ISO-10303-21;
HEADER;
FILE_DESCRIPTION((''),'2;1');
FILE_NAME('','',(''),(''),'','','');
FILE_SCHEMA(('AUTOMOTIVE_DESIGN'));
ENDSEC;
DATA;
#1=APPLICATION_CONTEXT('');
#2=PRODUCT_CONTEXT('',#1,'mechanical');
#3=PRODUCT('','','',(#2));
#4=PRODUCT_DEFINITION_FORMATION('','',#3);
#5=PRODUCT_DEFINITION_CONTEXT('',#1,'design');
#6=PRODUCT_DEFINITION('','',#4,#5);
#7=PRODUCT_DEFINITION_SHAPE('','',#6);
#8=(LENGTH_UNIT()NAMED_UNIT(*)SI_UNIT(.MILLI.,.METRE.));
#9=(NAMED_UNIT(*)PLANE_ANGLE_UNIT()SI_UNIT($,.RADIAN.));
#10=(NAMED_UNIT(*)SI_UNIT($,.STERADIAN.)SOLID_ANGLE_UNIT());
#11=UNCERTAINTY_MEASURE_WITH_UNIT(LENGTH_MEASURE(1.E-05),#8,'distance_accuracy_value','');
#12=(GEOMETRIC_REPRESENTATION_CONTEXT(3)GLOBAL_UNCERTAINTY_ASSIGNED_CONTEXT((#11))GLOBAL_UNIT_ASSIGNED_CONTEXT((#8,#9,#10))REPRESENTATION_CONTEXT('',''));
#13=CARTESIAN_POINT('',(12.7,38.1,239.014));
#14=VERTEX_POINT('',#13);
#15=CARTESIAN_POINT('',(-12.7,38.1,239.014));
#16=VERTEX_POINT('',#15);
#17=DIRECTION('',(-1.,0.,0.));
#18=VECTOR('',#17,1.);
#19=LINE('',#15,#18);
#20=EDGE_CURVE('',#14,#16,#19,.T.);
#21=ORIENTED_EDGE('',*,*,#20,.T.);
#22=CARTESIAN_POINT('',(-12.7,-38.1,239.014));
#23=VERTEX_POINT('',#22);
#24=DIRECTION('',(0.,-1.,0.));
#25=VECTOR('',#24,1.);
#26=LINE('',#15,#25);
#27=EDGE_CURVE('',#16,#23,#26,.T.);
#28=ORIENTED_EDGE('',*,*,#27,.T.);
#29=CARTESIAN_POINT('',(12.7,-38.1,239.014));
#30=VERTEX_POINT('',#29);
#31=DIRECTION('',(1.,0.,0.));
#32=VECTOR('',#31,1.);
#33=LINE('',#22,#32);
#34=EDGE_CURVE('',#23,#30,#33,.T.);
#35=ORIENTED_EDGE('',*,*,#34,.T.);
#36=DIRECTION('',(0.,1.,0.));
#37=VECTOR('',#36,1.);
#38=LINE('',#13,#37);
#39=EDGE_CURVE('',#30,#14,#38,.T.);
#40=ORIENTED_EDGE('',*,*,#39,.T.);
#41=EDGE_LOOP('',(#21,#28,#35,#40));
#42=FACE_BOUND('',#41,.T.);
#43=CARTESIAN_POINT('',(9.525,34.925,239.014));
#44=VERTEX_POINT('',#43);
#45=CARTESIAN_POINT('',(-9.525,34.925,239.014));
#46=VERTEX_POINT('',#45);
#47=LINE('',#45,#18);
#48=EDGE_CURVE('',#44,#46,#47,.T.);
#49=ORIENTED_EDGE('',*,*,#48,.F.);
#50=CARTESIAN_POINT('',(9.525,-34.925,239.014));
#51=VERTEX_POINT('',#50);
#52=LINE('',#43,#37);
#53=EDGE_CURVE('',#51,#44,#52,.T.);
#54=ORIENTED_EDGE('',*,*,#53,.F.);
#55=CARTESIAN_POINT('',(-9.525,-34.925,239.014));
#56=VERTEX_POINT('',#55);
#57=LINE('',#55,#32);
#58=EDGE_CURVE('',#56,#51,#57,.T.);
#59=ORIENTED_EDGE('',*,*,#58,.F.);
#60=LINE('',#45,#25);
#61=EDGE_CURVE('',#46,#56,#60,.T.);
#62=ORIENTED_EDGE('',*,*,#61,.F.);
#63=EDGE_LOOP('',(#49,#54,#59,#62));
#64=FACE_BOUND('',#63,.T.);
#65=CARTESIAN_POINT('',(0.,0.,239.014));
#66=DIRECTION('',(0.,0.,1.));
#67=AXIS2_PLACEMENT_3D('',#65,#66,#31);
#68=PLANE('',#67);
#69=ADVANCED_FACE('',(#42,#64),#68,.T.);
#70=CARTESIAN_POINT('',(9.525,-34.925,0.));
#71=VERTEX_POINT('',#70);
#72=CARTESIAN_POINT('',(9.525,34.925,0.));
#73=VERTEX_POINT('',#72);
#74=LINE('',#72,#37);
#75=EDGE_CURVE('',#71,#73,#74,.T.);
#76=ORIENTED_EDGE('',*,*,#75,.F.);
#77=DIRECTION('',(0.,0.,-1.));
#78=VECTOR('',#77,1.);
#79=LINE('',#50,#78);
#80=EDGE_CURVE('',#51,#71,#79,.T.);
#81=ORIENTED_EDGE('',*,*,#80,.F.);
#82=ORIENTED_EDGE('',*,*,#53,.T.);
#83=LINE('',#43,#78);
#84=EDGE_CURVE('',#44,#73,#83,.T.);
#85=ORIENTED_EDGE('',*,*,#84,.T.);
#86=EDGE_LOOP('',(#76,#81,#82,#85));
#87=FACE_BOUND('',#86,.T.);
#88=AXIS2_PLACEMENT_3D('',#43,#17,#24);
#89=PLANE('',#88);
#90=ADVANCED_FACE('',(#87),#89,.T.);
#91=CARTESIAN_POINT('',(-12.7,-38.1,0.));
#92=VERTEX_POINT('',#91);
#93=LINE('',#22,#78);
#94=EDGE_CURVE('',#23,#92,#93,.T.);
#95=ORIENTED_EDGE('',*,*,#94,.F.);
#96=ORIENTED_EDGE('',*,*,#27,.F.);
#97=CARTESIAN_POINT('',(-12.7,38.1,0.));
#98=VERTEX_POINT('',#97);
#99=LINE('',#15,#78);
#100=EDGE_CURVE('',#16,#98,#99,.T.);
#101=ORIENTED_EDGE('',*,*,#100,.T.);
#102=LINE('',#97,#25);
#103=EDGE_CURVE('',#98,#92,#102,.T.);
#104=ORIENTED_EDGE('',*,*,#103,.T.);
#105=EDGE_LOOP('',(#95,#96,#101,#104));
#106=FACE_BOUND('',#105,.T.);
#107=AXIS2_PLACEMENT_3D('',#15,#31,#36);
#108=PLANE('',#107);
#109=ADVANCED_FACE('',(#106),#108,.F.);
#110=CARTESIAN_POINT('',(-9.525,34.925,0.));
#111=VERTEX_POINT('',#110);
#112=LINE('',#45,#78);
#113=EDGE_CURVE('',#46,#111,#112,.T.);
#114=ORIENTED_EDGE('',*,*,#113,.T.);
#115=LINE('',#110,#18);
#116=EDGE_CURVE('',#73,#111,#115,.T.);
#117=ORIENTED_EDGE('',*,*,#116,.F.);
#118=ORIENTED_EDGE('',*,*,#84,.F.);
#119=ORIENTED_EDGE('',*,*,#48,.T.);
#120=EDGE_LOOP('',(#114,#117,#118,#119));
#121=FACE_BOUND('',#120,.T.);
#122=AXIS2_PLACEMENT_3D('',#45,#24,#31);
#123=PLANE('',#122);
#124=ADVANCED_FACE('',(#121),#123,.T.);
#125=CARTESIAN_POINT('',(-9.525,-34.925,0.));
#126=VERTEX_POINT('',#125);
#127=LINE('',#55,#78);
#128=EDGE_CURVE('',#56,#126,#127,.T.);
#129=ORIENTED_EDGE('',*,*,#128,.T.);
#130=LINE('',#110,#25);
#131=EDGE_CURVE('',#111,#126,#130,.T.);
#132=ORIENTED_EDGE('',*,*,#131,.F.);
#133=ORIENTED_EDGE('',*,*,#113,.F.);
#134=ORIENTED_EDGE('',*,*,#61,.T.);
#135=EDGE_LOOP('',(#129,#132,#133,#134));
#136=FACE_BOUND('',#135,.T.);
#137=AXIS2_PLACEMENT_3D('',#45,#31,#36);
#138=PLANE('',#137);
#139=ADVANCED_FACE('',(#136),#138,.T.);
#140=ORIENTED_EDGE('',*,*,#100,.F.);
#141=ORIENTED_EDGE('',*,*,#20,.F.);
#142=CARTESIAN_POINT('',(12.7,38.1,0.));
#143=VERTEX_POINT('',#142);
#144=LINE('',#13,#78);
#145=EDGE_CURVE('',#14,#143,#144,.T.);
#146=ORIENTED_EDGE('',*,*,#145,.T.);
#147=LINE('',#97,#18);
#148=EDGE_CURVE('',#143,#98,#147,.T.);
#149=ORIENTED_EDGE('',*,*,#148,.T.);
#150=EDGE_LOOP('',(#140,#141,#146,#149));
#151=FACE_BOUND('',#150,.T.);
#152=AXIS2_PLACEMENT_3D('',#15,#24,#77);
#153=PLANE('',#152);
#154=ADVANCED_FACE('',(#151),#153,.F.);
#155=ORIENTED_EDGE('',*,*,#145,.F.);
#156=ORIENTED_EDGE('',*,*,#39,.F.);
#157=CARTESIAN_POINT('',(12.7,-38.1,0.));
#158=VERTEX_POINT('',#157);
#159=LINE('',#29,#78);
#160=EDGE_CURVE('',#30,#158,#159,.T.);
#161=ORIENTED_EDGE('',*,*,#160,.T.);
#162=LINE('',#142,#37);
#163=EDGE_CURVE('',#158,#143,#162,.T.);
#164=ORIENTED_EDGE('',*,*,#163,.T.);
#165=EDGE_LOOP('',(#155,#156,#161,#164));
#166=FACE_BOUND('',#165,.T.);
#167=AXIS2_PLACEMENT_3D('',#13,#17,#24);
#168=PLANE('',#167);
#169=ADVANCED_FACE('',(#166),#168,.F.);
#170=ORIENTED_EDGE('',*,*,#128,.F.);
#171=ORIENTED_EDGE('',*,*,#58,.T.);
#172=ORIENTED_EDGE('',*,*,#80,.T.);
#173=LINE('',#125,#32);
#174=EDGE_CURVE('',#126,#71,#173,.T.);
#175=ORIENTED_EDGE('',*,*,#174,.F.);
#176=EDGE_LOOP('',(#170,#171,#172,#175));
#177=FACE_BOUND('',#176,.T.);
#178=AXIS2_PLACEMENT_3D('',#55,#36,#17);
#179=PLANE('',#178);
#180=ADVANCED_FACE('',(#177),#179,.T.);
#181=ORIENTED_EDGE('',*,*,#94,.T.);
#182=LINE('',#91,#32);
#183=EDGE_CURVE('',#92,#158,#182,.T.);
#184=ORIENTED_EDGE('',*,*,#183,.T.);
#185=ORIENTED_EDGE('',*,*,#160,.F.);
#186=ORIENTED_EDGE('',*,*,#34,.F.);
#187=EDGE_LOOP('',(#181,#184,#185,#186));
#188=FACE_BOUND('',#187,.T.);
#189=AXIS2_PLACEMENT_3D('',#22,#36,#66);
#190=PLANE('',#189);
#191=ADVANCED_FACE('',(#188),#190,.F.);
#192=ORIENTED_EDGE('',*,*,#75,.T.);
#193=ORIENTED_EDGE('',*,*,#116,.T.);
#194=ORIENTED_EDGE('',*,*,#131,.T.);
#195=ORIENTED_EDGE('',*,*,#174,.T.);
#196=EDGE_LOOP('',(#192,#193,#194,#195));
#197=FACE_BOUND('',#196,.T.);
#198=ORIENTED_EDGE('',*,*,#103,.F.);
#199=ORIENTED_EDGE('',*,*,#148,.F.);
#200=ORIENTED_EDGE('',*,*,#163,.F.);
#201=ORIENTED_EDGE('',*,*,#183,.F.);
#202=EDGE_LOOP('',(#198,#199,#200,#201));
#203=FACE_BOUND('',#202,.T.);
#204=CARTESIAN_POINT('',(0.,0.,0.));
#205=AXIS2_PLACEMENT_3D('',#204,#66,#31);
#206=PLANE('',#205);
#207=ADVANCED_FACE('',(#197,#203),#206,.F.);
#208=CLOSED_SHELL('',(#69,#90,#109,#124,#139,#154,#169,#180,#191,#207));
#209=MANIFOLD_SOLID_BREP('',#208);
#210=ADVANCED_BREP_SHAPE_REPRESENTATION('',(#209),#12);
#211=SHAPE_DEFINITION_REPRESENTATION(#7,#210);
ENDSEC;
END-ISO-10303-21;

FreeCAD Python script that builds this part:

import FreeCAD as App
import Part
import Sketcher
from FreeCAD import Vector
Q = App.Units.Quantity


def add_polygon(sketch, points):
    """Adds a closed chain of lines whose ends are joined by coincident constraints."""
    first, n = sketch.GeometryCount, len(points)
    for a, b in zip(points, points[1:] + points[:1]):
        sketch.addGeometry(Part.LineSegment(App.Vector(*a, 0), App.Vector(*b, 0)), False)
    for i in range(n):
        sketch.addConstraint(Sketcher.Constraint("Coincident", first + i, 2, first + (i + 1) % n, 1))

doc = App.newDocument("Part")
body = doc.addObject("PartDesign::Body", "Body")

# Sketch on XY plane
sketch1 = body.newObject("Sketcher::SketchObject", "Sketch")
sketch1.AttachmentSupport = (doc.getObject("XY_Plane"), [""])
sketch1.MapMode = "FlatFace"
add_polygon(sketch1, [(-13, 38), (-13, -38), (13, -38), (13, 38)])  # lines 0-3
add_polygon(sketch1, [(10, -35), (-10, -35), (-10, 35), (10, 35)])  # lines 4-7
sketch1.addConstraint([
    Sketcher.Constraint("Vertical", 0),
    Sketcher.Constraint("Horizontal", 1),
    Sketcher.Constraint("Vertical", 2),
    Sketcher.Constraint("Horizontal", 3),
    Sketcher.Constraint("Horizontal", 4),
    Sketcher.Constraint("Vertical", 5),
    Sketcher.Constraint("Horizontal", 6),
    Sketcher.Constraint("Vertical", 7),
    Sketcher.Constraint("Symmetric", 0, 2, 2, 2, -1, 1),
    Sketcher.Constraint("Symmetric", 4, 2, 6, 2, -1, 1),
    Sketcher.Constraint("DistanceX", 1, 1, 1, 2, Q("1 in")),
    Sketcher.Constraint("DistanceY", 0, 2, 0, 1, Q("3 in")),
    Sketcher.Constraint("DistanceX", 4, 2, 4, 1, Q("0.75 in")),
    Sketcher.Constraint("DistanceY", 5, 1, 5, 2, Q("2.75 in")),
])
pad1 = body.newObject("PartDesign::Pad", "Pad")
pad1.Profile = sketch1
pad1.Length = Q("9.41 in")

doc.recompute()
